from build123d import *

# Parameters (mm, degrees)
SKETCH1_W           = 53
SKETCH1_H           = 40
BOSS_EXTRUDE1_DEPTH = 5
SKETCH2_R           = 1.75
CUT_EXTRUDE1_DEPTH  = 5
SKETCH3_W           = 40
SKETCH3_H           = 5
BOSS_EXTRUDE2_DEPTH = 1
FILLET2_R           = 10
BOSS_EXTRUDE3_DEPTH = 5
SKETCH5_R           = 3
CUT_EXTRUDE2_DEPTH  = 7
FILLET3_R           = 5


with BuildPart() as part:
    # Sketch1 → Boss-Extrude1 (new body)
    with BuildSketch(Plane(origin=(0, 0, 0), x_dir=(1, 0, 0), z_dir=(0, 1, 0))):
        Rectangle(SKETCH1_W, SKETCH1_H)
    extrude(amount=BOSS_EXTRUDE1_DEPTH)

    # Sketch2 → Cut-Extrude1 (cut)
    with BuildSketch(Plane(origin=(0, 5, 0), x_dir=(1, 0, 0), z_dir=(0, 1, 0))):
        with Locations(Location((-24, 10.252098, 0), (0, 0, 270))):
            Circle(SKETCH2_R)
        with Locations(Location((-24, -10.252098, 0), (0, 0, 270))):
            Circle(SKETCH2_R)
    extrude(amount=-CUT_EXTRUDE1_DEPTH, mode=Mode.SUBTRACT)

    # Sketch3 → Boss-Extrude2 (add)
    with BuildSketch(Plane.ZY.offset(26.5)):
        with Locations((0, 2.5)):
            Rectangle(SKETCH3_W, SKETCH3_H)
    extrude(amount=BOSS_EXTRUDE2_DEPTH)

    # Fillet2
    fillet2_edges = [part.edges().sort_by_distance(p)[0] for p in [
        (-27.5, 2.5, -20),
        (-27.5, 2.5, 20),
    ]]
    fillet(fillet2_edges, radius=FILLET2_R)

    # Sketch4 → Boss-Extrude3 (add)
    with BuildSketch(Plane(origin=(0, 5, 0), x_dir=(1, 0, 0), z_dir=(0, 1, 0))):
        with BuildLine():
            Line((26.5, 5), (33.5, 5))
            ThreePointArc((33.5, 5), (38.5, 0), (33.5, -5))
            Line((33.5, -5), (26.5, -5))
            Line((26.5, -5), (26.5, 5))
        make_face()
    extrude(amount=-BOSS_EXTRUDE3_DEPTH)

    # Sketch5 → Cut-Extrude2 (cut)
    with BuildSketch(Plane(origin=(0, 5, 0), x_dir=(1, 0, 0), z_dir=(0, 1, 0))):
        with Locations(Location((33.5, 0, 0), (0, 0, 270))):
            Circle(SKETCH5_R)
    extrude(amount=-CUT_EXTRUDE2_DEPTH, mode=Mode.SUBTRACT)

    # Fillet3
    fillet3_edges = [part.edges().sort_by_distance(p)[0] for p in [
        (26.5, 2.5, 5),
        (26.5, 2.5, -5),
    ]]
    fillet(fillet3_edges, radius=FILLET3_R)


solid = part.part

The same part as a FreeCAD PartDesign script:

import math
import FreeCAD as App
import Part
import Sketcher
Q = App.Units.Quantity


def edges_at(feature, points):
    """Names of the edges that pass closest to the given points."""
    edges = feature.Shape.Edges
    near = lambda p: min(range(len(edges)), key=lambda i: edges[i].distToShape(Part.Vertex(*p))[0])
    return sorted({f"Edge{near(p) + 1}" for p in points})

doc = App.newDocument("Part")
body = doc.addObject("PartDesign::Body", "Body")

# Sketch on XZ plane
sketch1 = body.newObject("Sketcher::SketchObject", "Sketch")
sketch1.AttachmentSupport = (doc.getObject("XZ_Plane"), [""])
sketch1.MapMode = "FlatFace"
sketch1.addGeometry(Part.LineSegment(App.Vector(-26, -20, 0), App.Vector(-26, 20, 0)), False)
sketch1.addGeometry(Part.LineSegment(App.Vector(-26, 20, 0), App.Vector(26, 20, 0)), False)
sketch1.addGeometry(Part.LineSegment(App.Vector(26, 20, 0), App.Vector(26, -20, 0)), False)
sketch1.addGeometry(Part.LineSegment(App.Vector(26, -20, 0), App.Vector(-26, -20, 0)), False)
sketch1.addConstraint(Sketcher.Constraint("Coincident", 0, 2, 1, 1))
sketch1.addConstraint(Sketcher.Constraint("Coincident", 1, 2, 2, 1))
sketch1.addConstraint(Sketcher.Constraint("Coincident", 2, 2, 3, 1))
sketch1.addConstraint(Sketcher.Constraint("Coincident", 3, 2, 0, 1))
sketch1.addConstraint(Sketcher.Constraint("Vertical", 0))
sketch1.addConstraint(Sketcher.Constraint("Horizontal", 1))
sketch1.addConstraint(Sketcher.Constraint("Vertical", 2))
sketch1.addConstraint(Sketcher.Constraint("Horizontal", 3))
sketch1.addConstraint(Sketcher.Constraint("Symmetric", 0, 2, 2, 2, -1, 1))
sketch1.addConstraint(Sketcher.Constraint("DistanceX", 1, 1, 1, 2, Q("53 mm")))
sketch1.addConstraint(Sketcher.Constraint("DistanceY", 0, 1, 0, 2, Q("40 mm")))
pad1 = body.newObject("PartDesign::Pad", "Pad")
pad1.Profile = sketch1
pad1.Length = 5
pad1.Reversed = True

# Sketch on XZ plane
sketch2 = body.newObject("Sketcher::SketchObject", "Sketch001")
sketch2.AttachmentSupport = (doc.getObject("XZ_Plane"), [""])
sketch2.MapMode = "FlatFace"
sketch2.AttachmentOffset = App.Placement(App.Vector(0, 0, -5), App.Rotation())
sketch2.addGeometry(Part.Circle(App.Vector(-24, -10.3, 0), App.Vector(0, 0, 1), 1.8), False)
sketch2.addGeometry(Part.Circle(App.Vector(-24, 10.3, 0), App.Vector(0, 0, 1), 1.8), False)
sketch2.addConstraint(Sketcher.Constraint("Equal", 0, 1))
sketch2.addConstraint(Sketcher.Constraint("Symmetric", 0, 3, 1, 3, -1))
sketch2.addConstraint(Sketcher.Constraint("Diameter", 0, Q("3.5 mm")))
sketch2.addConstraint(Sketcher.Constraint("DistanceX", 0, 3, -1, 1, Q("24 mm")))
sketch2.addConstraint(Sketcher.Constraint("DistanceY", 0, 3, -1, 1, Q("10.252098 mm")))
pocket1 = body.newObject("PartDesign::Pocket", "Pocket")
pocket1.Profile = sketch2
pocket1.Length = 5
pocket1.Reversed = True

# Sketch on YZ plane
sketch3 = body.newObject("Sketcher::SketchObject", "Sketch002")
sketch3.AttachmentSupport = (doc.getObject("YZ_Plane"), [""])
sketch3.MapMode = "FlatFace"
sketch3.AttachmentOffset = App.Placement(App.Vector(0, 0, -26.5), App.Rotation())
sketch3.addGeometry(Part.LineSegment(App.Vector(5, -20, 0), App.Vector(0, -20, 0)), False)
sketch3.addGeometry(Part.LineSegment(App.Vector(0, -20, 0), App.Vector(0, 20, 0)), False)
sketch3.addGeometry(Part.LineSegment(App.Vector(0, 20, 0), App.Vector(5, 20, 0)), False)
sketch3.addGeometry(Part.LineSegment(App.Vector(5, 20, 0), App.Vector(5, -20, 0)), False)
sketch3.addConstraint(Sketcher.Constraint("Coincident", 0, 2, 1, 1))
sketch3.addConstraint(Sketcher.Constraint("Coincident", 1, 2, 2, 1))
sketch3.addConstraint(Sketcher.Constraint("Coincident", 2, 2, 3, 1))
sketch3.addConstraint(Sketcher.Constraint("Coincident", 3, 2, 0, 1))
sketch3.addConstraint(Sketcher.Constraint("Horizontal", 0))
sketch3.addConstraint(Sketcher.Constraint("Vertical", 1))
sketch3.addConstraint(Sketcher.Constraint("Horizontal", 2))
sketch3.addConstraint(Sketcher.Constraint("Vertical", 3))
sketch3.addConstraint(Sketcher.Constraint("Symmetric", 0, 2, 1, 2, -1, 1))
sketch3.addConstraint(Sketcher.Constraint("DistanceX", 0, 2, 0, 1, Q("5 mm")))
sketch3.addConstraint(Sketcher.Constraint("DistanceY", 1, 1, 1, 2, Q("40 mm")))
pad2 = body.newObject("PartDesign::Pad", "Pad001")
pad2.Profile = sketch3
pad2.Length = 1
pad2.Reversed = True
doc.recompute()

fillet = body.newObject("PartDesign::Fillet", "Fillet")
fillet.Base = (pad2, edges_at(pad2, [(-27.5, 2.5, -20), (-27.5, 2.5, 20)]))
fillet.Radius = 10

# Sketch on XZ plane
sketch4 = body.newObject("Sketcher::SketchObject", "Sketch003")
sketch4.AttachmentSupport = (doc.getObject("XZ_Plane"), [""])
sketch4.MapMode = "FlatFace"
sketch4.AttachmentOffset = App.Placement(App.Vector(0, 0, -5), App.Rotation())
sketch4.addGeometry(Part.LineSegment(App.Vector(34, -5, 0), App.Vector(26, -5, 0)), False)
sketch4.addGeometry(Part.LineSegment(App.Vector(26, -5, 0), App.Vector(26, 5, 0)), False)
sketch4.addGeometry(Part.LineSegment(App.Vector(26, 5, 0), App.Vector(34, 5, 0)), False)
sketch4.addGeometry(Part.ArcOfCircle(Part.Circle(App.Vector(34, 0, 0), App.Vector(0, 0, 1), 5), math.radians(-90), math.radians(90)), False)
sketch4.addConstraint(Sketcher.Constraint("Coincident", 0, 2, 1, 1))
sketch4.addConstraint(Sketcher.Constraint("Coincident", 1, 2, 2, 1))
sketch4.addConstraint(Sketcher.Constraint("Tangent", 2, 2, 3, 2))
sketch4.addConstraint(Sketcher.Constraint("Tangent", 3, 1, 0, 1))
sketch4.addConstraint(Sketcher.Constraint("Horizontal", 0))
sketch4.addConstraint(Sketcher.Constraint("Vertical", 1))
sketch4.addConstraint(Sketcher.Constraint("Horizontal", 2))
sketch4.addConstraint(Sketcher.Constraint("PointOnObject", 3, 3, -1))
sketch4.addConstraint(Sketcher.Constraint("Radius", 3, Q("5 mm")))
sketch4.addConstraint(Sketcher.Constraint("DistanceX", 0, 2, 0, 1, Q("7 mm")))
sketch4.addConstraint(Sketcher.Constraint("DistanceX", -1, 1, 3, 3, Q("33.5 mm")))
pad3 = body.newObject("PartDesign::Pad", "Pad002")
pad3.Profile = sketch4
pad3.Length = 5

# Sketch on XZ plane
sketch5 = body.newObject("Sketcher::SketchObject", "Sketch004")
sketch5.AttachmentSupport = (doc.getObject("XZ_Plane"), [""])
sketch5.MapMode = "FlatFace"
sketch5.AttachmentOffset = App.Placement(App.Vector(0, 0, -5), App.Rotation())
sketch5.addGeometry(Part.Circle(App.Vector(33.5, 0, 0), App.Vector(0, 0, 1), 3), False)
sketch5.addConstraint(Sketcher.Constraint("PointOnObject", 0, 3, -1))
sketch5.addConstraint(Sketcher.Constraint("Diameter", 0, Q("6 mm")))
sketch5.addConstraint(Sketcher.Constraint("DistanceX", -1, 1, 0, 3, Q("33.5 mm")))
pocket2 = body.newObject("PartDesign::Pocket", "Pocket001")
pocket2.Profile = sketch5
pocket2.Length = 7
pocket2.Reversed = True
doc.recompute()

fillet2 = body.newObject("PartDesign::Fillet", "Fillet001")
fillet2.Base = (pocket2, edges_at(pocket2, [(26.5, 2.5, 5), (26.5, 2.5, -5)]))
fillet2.Radius = 5

doc.recompute()
